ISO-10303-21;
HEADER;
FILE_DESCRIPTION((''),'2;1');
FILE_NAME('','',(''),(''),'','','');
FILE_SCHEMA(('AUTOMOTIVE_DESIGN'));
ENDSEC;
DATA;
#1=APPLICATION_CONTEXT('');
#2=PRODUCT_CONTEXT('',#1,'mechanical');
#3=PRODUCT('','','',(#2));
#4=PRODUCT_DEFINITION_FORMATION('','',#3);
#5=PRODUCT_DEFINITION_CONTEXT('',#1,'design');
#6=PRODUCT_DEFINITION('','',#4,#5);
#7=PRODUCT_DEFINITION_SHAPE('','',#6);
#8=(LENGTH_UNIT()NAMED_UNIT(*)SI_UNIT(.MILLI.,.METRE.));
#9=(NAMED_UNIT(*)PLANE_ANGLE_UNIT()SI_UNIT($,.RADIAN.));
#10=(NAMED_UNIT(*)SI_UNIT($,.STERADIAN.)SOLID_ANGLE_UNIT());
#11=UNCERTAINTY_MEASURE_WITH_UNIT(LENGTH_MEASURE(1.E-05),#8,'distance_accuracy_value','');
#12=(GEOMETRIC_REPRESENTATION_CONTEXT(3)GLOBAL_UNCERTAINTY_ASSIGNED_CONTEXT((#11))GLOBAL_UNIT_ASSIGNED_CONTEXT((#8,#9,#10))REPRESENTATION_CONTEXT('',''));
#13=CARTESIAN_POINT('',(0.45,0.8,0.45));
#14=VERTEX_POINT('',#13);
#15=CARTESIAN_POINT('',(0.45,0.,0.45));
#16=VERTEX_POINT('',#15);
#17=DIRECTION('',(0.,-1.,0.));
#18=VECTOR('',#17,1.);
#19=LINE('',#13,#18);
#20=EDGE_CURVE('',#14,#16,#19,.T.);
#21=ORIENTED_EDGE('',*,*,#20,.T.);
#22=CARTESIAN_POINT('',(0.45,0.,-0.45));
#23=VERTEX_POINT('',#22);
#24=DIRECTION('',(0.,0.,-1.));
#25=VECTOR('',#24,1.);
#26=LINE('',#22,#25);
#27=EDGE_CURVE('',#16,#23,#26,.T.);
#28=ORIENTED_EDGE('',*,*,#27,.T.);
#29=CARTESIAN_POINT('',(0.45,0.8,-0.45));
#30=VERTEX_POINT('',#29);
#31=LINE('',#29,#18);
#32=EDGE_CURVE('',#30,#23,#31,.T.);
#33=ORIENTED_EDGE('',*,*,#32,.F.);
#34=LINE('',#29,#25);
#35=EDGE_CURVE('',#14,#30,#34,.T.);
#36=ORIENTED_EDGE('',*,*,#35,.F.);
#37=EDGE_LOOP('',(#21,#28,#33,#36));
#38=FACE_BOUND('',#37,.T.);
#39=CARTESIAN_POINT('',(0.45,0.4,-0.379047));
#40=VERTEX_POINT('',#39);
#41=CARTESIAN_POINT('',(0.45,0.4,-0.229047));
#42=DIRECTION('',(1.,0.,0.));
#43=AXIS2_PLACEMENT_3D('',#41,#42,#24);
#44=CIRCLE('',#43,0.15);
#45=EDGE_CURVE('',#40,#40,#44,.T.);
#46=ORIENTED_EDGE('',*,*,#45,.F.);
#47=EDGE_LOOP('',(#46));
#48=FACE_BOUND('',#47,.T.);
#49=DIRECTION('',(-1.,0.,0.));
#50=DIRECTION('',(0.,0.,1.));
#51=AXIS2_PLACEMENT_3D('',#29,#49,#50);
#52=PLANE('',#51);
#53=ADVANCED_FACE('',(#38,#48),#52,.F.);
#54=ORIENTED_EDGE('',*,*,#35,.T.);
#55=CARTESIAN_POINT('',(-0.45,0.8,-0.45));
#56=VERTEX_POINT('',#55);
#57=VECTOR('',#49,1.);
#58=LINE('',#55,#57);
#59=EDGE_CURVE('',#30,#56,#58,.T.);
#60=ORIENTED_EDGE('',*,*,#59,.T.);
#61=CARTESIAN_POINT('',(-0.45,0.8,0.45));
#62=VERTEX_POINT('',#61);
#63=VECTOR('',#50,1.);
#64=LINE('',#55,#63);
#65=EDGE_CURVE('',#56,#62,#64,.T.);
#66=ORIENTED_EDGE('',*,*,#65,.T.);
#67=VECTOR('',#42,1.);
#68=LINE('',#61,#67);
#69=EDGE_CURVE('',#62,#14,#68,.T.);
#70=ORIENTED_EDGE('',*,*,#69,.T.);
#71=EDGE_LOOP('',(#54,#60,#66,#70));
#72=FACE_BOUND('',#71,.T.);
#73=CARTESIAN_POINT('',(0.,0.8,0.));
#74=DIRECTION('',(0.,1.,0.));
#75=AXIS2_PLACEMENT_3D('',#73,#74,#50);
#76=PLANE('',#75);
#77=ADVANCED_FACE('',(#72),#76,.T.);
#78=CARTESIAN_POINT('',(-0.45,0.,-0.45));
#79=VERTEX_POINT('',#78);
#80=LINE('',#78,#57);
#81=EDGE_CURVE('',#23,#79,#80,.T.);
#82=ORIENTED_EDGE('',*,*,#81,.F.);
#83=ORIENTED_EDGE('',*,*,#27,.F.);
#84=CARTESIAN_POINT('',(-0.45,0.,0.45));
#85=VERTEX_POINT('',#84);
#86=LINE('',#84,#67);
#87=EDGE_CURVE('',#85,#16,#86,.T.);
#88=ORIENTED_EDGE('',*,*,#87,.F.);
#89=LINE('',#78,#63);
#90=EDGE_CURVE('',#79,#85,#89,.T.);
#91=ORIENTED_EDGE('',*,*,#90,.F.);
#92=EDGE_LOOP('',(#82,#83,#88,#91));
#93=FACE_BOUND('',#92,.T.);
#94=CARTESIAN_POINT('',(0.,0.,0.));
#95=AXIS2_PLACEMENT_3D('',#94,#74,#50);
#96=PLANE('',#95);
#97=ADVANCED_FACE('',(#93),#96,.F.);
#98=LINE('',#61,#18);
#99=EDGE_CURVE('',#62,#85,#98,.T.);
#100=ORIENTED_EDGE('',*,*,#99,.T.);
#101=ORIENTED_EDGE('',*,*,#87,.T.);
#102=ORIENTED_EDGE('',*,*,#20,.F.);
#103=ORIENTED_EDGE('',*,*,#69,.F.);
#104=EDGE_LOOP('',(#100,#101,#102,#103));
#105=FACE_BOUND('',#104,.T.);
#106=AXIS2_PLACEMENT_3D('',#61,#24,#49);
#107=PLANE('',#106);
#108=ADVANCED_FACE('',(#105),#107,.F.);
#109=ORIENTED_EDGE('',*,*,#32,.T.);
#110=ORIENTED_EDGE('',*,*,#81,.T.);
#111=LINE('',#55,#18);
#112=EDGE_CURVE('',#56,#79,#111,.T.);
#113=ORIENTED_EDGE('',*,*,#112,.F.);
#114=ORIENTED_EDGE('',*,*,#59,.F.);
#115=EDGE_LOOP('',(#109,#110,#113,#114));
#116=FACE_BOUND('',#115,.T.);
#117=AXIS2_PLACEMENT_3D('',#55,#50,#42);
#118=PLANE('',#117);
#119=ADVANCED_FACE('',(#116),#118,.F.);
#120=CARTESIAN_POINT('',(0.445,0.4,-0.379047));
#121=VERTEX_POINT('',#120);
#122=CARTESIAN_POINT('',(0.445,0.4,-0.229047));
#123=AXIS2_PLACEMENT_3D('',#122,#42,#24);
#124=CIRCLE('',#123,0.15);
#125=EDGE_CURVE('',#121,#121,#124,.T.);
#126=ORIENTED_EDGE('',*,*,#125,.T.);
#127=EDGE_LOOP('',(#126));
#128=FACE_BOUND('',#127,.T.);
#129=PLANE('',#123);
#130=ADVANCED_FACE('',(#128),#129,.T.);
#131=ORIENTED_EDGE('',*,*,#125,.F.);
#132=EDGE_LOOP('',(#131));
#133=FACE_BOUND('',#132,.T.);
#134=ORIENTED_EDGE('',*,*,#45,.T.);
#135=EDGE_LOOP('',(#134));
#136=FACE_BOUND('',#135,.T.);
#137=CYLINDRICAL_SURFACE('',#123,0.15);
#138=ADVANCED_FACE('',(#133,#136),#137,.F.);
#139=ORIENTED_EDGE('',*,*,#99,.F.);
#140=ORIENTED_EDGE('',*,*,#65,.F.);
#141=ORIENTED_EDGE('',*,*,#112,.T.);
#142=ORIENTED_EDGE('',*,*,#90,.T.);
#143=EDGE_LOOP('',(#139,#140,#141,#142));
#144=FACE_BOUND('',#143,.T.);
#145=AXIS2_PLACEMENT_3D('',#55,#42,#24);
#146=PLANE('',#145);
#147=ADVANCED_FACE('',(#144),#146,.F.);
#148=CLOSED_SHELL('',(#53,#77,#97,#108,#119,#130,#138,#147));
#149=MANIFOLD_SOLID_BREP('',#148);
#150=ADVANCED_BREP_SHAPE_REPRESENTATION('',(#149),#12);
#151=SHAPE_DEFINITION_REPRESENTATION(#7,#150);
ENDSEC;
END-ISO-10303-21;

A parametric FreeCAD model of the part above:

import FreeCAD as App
import Part
import Sketcher
from FreeCAD import Vector
Q = App.Units.Quantity

doc = App.newDocument("Part")
body = doc.addObject("PartDesign::Body", "Body")

sketch1 = body.newObject("Sketcher::SketchObject", "Sketch")
sketch1.AttachmentSupport = (doc.getObject("XZ_Plane"), [""])
sketch1.MapMode = "FlatFace"
sketch1.addGeometry(Part.LineSegment(Vector(-0.5, -0.5, 0), Vector(-0.5, 0.5, 0)), False)
sketch1.addGeometry(Part.LineSegment(Vector(-0.5, 0.5, 0), Vector(0.5, 0.5, 0)), False)
sketch1.addGeometry(Part.LineSegment(Vector(0.5, 0.5, 0), Vector(0.5, -0.5, 0)), False)
sketch1.addGeometry(Part.LineSegment(Vector(0.5, -0.5, 0), Vector(-0.5, -0.5, 0)), False)
sketch1.addConstraint(Sketcher.Constraint("Coincident", 0, 2, 1, 1))
sketch1.addConstraint(Sketcher.Constraint("Coincident", 1, 2, 2, 1))
sketch1.addConstraint(Sketcher.Constraint("Coincident", 2, 2, 3, 1))
sketch1.addConstraint(Sketcher.Constraint("Coincident", 3, 2, 0, 1))
sketch1.addConstraint(Sketcher.Constraint("Vertical", 0))
sketch1.addConstraint(Sketcher.Constraint("Horizontal", 1))
sketch1.addConstraint(Sketcher.Constraint("Vertical", 2))
sketch1.addConstraint(Sketcher.Constraint("Horizontal", 3))
sketch1.addConstraint(Sketcher.Constraint("Symmetric", 0, 2, 2, 2, -1, 1))
sketch1.addConstraint(Sketcher.Constraint("Equal", 3, 0))
sketch1.addConstraint(Sketcher.Constraint("DistanceX", 1, 1, 1, 2, Q("0.9 mm")))
pad1 = body.newObject("PartDesign::Pad", "Pad")
pad1.Profile = sketch1
pad1.Length = 0.8
pad1.Reversed = True

sketch2 = body.newObject("Sketcher::SketchObject", "Sketch001")
sketch2.AttachmentSupport = (doc.getObject("YZ_Plane"), [""])
sketch2.MapMode = "FlatFace"
sketch2.AttachmentOffset = App.Placement(Vector(0, 0, 0.45), App.Rotation())
sketch2.addGeometry(Part.Circle(Vector(0.4, -0.23, 0), Vector(0, 0, 1), 0.15), False)
sketch2.addConstraint(Sketcher.Constraint("Diameter", 0, Q("0.3 mm")))
sketch2.addConstraint(Sketcher.Constraint("DistanceX", -1, 1, 0, 3, Q("0.4 mm")))
sketch2.addConstraint(Sketcher.Constraint("DistanceY", 0, 3, -1, 1, Q("0.229047 mm")))
pocket1 = body.newObject("PartDesign::Pocket", "Pocket")
pocket1.Profile = sketch2
pocket1.Length = 0.005

doc.recompute()
